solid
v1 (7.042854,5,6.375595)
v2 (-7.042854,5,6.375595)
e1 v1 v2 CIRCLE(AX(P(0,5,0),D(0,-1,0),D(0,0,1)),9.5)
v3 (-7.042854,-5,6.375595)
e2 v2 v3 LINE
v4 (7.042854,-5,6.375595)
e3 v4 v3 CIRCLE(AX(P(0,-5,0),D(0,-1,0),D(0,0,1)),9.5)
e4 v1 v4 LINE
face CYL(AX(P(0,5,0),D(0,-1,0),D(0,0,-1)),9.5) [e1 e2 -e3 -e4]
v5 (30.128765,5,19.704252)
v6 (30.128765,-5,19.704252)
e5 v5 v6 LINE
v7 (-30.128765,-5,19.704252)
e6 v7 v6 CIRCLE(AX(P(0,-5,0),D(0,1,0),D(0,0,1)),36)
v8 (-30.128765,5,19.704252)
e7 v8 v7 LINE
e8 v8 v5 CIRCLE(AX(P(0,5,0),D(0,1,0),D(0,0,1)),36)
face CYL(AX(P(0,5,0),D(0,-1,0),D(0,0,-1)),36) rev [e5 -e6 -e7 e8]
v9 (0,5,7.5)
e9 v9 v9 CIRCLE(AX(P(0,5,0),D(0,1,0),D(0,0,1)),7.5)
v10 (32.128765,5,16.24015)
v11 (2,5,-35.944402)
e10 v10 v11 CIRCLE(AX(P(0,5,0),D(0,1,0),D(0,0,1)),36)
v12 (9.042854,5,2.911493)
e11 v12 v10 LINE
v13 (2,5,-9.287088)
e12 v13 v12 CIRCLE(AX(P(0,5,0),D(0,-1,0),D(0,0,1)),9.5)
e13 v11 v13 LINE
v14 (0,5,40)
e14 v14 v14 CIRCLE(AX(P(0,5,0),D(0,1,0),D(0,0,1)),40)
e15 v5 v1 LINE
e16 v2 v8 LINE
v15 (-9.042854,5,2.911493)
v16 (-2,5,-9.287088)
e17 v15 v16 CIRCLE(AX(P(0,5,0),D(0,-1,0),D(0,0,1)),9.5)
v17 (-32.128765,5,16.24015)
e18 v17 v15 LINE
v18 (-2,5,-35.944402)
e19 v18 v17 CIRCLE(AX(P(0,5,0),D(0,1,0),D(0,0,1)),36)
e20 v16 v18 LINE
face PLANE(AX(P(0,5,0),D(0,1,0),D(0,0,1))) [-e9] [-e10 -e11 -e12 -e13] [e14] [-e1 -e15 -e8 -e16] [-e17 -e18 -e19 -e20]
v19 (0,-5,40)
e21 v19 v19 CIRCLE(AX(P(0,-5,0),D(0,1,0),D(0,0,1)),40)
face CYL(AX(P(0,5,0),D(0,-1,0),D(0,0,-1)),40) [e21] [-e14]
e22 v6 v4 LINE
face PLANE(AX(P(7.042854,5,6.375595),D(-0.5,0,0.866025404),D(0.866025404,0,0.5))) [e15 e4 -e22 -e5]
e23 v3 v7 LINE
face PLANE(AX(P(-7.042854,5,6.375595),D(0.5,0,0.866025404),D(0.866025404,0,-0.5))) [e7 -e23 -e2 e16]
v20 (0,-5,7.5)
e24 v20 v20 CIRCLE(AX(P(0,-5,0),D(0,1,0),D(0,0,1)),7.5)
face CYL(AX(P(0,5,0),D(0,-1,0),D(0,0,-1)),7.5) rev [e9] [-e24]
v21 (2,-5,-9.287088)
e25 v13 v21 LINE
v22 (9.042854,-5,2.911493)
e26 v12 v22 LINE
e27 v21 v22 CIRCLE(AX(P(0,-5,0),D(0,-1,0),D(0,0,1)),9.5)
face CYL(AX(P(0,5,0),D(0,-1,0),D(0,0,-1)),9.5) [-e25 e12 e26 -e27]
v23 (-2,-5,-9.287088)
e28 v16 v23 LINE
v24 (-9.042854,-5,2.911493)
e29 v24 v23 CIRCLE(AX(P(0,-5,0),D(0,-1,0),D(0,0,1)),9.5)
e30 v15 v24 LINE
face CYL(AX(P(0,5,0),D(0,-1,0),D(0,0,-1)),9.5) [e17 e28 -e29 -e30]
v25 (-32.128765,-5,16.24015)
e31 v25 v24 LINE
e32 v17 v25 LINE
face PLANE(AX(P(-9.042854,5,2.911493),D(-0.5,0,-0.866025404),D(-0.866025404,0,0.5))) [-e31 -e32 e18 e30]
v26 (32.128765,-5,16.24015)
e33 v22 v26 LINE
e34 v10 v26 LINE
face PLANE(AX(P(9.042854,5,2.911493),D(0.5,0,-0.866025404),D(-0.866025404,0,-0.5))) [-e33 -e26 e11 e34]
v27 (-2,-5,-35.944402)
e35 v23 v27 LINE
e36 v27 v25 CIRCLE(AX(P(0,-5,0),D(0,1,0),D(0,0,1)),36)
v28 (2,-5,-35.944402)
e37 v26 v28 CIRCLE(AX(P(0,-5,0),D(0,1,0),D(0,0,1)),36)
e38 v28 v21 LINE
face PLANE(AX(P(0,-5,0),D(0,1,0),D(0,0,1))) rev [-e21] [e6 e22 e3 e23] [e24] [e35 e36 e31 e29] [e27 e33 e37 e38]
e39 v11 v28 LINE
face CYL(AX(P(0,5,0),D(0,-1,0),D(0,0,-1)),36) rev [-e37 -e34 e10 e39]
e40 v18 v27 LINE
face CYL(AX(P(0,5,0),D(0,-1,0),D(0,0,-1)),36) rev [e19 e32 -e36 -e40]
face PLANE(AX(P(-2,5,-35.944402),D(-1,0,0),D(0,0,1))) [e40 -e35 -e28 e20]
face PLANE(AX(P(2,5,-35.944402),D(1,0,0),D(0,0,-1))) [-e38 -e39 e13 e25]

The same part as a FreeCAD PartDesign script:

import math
import FreeCAD as App
import Part
import Sketcher
from FreeCAD import Vector
Q = App.Units.Quantity

doc = App.newDocument("Part")
params = doc.addObject("Spreadsheet::Sheet", "Params")
for row, (alias, value) in enumerate([
    ("sketch1_diameter", "80 mm"),
    ("sketch1_diameter2", "15 mm"),
    ("sketch1_radius", "36 mm"),
    ("sketch1_radius2", "9.5 mm"),
    ("pad1_length", "10 mm"),
], start=1):
    params.set(f"A{row}", alias)
    params.set(f"B{row}", "=" + value)
    params.setAlias(f"B{row}", alias)

body = doc.addObject("PartDesign::Body", "Body")

# Sketch on XZ plane
sketch1 = body.newObject("Sketcher::SketchObject", "Sketch")
sketch1.AttachmentSupport = (doc.getObject("XZ_Plane"), [""])
sketch1.MapMode = "FlatFace"
sketch1.addGeometry([
    Part.Circle(Vector(0, 0, 0), Vector(0, 0, 1), 40),  # 0
    Part.ArcOfCircle(Part.Circle(Vector(0, 0, 0), Vector(0, 0, 1), 36), math.radians(153), math.radians(267)),  # 1
    Part.LineSegment(Vector(-2, -36, 0), Vector(-2, -9, 0)),  # 2
    Part.ArcOfCircle(Part.Circle(Vector(0, 0, 0), Vector(0, 0, 1), 10), math.radians(162), math.radians(258)),  # 3
    Part.LineSegment(Vector(-9, 3, 0), Vector(-32, 16, 0)),  # 4
    Part.Circle(Vector(0, 0, 0), Vector(0, 0, 1), 8),  # 5
    Part.LineSegment(Vector(2, -9, 0), Vector(2, -36, 0)),  # 6
    Part.ArcOfCircle(Part.Circle(Vector(0, 0, 0), Vector(0, 0, 1), 36), math.radians(-87), math.radians(27)),  # 7
    Part.LineSegment(Vector(32, 16, 0), Vector(9, 3, 0)),  # 8
    Part.ArcOfCircle(Part.Circle(Vector(0, 0, 0), Vector(0, 0, 1), 10), math.radians(-78), math.radians(18)),  # 9
    Part.LineSegment(Vector(-30, 20, 0), Vector(-7, 6, 0)),  # 10
    Part.ArcOfCircle(Part.Circle(Vector(0, 0, 0), Vector(0, 0, 1), 10), math.radians(42), math.radians(138)),  # 11
    Part.LineSegment(Vector(7, 6, 0), Vector(30, 20, 0)),  # 12
    Part.ArcOfCircle(Part.Circle(Vector(0, 0, 0), Vector(0, 0, 1), 36), math.radians(33), math.radians(147)),  # 13
], False)
sketch1.addConstraint([
    Sketcher.Constraint("Coincident", 1, 2, 2, 1),
    Sketcher.Constraint("Coincident", 2, 2, 3, 2),
    Sketcher.Constraint("Coincident", 3, 1, 4, 1),
    Sketcher.Constraint("Coincident", 4, 2, 1, 1),
    Sketcher.Constraint("Coincident", 6, 2, 7, 1),
    Sketcher.Constraint("Coincident", 7, 2, 8, 1),
    Sketcher.Constraint("Coincident", 8, 2, 9, 2),
    Sketcher.Constraint("Coincident", 9, 1, 6, 1),
    Sketcher.Constraint("Coincident", 10, 2, 11, 2),
    Sketcher.Constraint("Coincident", 11, 1, 12, 1),
    Sketcher.Constraint("Coincident", 12, 2, 13, 1),
    Sketcher.Constraint("Coincident", 13, 2, 10, 1),
    Sketcher.Constraint("Vertical", 2),
    Sketcher.Constraint("Vertical", 6),
    Sketcher.Constraint("Coincident", 0, 3, -1, 1),
    Sketcher.Constraint("Coincident", 1, 3, -1, 1),
    Sketcher.Constraint("Coincident", 3, 3, -1, 1),
    Sketcher.Constraint("Coincident", 5, 3, -1, 1),
    Sketcher.Constraint("Coincident", 7, 3, -1, 1),
    Sketcher.Constraint("Coincident", 9, 3, -1, 1),
    Sketcher.Constraint("Coincident", 11, 3, -1, 1),
    Sketcher.Constraint("Coincident", 13, 3, -1, 1),
    Sketcher.Constraint("Equal", 1, 7),
    Sketcher.Constraint("Equal", 3, 9),
    Sketcher.Constraint("Equal", 9, 11),
    Sketcher.Constraint("Equal", 7, 13),
    Sketcher.Constraint("Parallel", 4, 10),
    Sketcher.Constraint("Parallel", 8, 12),
    Sketcher.Constraint("Horizontal", 1, 2, 6, 2),
    Sketcher.Constraint("Horizontal", 4, 2, 7, 2),
    Sketcher.Constraint("Horizontal", 3, 1, 8, 2),
    Sketcher.Constraint("Horizontal", 10, 2, 11, 1),
    Sketcher.Constraint("Equal", 8, 10),
    Sketcher.Constraint("Diameter", 0, 80.0),
    Sketcher.Constraint("Diameter", 5, 15.0),
    Sketcher.Constraint("Radius", 1, 36.0),
    Sketcher.Constraint("Radius", 3, 9.5),
    Sketcher.Constraint("Angle", 4, Q("150 deg")),
    Sketcher.Constraint("DistanceX", 1, 2, -1, 1, 2.0),
    Sketcher.Constraint("DistanceX", 3, 1, 10, 2, 2.0),
])
sketch1.setExpression("Constraints[33]", "Params.sketch1_diameter")
sketch1.setExpression("Constraints[34]", "Params.sketch1_diameter2")
sketch1.setExpression("Constraints[35]", "Params.sketch1_radius")
sketch1.setExpression("Constraints[36]", "Params.sketch1_radius2")
pad1 = body.newObject("PartDesign::Pad", "Pad")
pad1.Profile = sketch1
pad1.setExpression("Length", "Params.pad1_length")
pad1.Midplane = True

doc.recompute()
